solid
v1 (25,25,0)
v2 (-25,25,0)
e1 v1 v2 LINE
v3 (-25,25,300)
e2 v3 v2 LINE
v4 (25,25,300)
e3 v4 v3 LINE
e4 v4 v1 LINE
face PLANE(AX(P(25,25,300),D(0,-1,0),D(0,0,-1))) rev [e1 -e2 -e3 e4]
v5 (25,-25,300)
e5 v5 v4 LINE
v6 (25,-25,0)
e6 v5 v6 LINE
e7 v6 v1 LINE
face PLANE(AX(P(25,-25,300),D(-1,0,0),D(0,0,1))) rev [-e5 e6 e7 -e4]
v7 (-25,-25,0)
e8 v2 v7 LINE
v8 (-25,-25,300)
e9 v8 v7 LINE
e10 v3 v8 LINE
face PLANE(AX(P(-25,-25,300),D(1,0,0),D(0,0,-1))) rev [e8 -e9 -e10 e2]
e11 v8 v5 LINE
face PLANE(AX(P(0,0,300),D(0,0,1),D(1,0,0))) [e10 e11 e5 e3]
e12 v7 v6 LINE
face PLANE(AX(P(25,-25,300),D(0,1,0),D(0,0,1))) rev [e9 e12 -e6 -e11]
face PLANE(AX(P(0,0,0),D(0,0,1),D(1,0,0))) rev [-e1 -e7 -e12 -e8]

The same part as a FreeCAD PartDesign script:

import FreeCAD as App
import Part
import Sketcher
from FreeCAD import Vector
Q = App.Units.Quantity

doc = App.newDocument("Part")
body = doc.addObject("PartDesign::Body", "Body")

# Sketch on XY plane
sketch1 = body.newObject("Sketcher::SketchObject", "Sketch")
sketch1.AttachmentSupport = (doc.getObject("XY_Plane"), [""])
sketch1.MapMode = "FlatFace"
sketch1.addGeometry(Part.LineSegment(Vector(-25, 25, 0), Vector(-25, -25, 0)), False)
sketch1.addGeometry(Part.LineSegment(Vector(-25, -25, 0), Vector(25, -25, 0)), False)
sketch1.addGeometry(Part.LineSegment(Vector(25, -25, 0), Vector(25, 25, 0)), False)
sketch1.addGeometry(Part.LineSegment(Vector(25, 25, 0), Vector(-25, 25, 0)), False)
sketch1.addConstraint(Sketcher.Constraint("Coincident", 0, 2, 1, 1))
sketch1.addConstraint(Sketcher.Constraint("Coincident", 1, 2, 2, 1))
sketch1.addConstraint(Sketcher.Constraint("Coincident", 2, 2, 3, 1))
sketch1.addConstraint(Sketcher.Constraint("Coincident", 3, 2, 0, 1))
sketch1.addConstraint(Sketcher.Constraint("Vertical", 0))
sketch1.addConstraint(Sketcher.Constraint("Horizontal", 1))
sketch1.addConstraint(Sketcher.Constraint("Vertical", 2))
sketch1.addConstraint(Sketcher.Constraint("Horizontal", 3))
sketch1.addConstraint(Sketcher.Constraint("Symmetric", 0, 2, 2, 2, -1, 1))
sketch1.addConstraint(Sketcher.Constraint("Equal", 3, 0))
sketch1.addConstraint(Sketcher.Constraint("DistanceX", 1, 1, 1, 2, Q("50 mm")))
pad1 = body.newObject("PartDesign::Pad", "Pad")
pad1.Profile = sketch1
pad1.Length = 300

doc.recompute()
